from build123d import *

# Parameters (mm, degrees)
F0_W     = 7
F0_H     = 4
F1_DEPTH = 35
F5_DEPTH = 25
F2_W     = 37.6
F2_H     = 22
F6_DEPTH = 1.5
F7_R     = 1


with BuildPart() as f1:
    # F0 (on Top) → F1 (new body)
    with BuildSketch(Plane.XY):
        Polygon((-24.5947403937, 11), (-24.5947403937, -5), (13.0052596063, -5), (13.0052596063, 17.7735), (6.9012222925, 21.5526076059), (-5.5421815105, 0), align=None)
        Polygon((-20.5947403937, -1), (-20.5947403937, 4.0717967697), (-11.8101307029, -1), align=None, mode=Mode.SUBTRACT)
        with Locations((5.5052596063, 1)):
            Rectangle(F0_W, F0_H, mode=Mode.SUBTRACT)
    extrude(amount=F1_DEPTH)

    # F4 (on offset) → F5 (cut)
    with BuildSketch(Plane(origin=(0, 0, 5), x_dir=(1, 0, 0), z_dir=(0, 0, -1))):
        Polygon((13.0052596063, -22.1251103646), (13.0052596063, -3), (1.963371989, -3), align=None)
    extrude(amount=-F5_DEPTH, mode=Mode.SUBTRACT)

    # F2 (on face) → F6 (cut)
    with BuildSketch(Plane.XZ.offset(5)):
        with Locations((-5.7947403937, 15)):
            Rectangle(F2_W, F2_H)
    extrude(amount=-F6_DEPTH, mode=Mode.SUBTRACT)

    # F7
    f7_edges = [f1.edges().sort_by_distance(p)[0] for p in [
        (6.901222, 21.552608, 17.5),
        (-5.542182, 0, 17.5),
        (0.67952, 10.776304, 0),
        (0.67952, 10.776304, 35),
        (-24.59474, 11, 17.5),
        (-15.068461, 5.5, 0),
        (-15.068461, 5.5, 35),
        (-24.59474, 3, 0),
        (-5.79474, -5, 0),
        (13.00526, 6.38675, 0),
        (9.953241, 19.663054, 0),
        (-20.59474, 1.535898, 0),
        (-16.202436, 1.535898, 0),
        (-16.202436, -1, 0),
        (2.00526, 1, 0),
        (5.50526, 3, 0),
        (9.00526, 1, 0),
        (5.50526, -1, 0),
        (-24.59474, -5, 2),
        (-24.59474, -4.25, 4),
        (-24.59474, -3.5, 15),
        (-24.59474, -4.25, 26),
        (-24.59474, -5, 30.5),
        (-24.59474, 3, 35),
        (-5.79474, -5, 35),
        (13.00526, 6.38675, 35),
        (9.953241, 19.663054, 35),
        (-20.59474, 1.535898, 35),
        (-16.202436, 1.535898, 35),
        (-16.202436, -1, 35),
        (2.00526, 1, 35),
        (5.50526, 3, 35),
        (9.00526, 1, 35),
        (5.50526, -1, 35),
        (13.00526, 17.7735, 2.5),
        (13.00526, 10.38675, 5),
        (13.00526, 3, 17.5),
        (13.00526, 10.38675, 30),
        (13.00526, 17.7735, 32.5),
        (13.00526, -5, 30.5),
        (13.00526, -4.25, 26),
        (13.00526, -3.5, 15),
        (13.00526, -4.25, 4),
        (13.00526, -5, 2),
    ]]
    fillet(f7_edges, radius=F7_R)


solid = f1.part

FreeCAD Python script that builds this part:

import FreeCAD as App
import Part
import Sketcher

V = App.Vector
Q = App.Units.Quantity


def edges_at(feature, points):
    """Names of the edges that pass closest to the given points."""
    edges = feature.Shape.Edges
    near = lambda p: min(range(len(edges)), key=lambda i: edges[i].distToShape(Part.Vertex(*p))[0])
    return sorted({f"Edge{near(p) + 1}" for p in points})

doc = App.newDocument("Part")
body = doc.addObject("PartDesign::Body", "Body")

sketch1 = body.newObject("Sketcher::SketchObject", "Sketch")
sketch1.AttachmentSupport = (doc.getObject("XY_Plane"), [""])
sketch1.MapMode = "FlatFace"
sketch1.addGeometry([
    Part.LineSegment(V(-24.6, 11, 0), V(-24.6, -5, 0)),
    Part.LineSegment(V(-24.6, -5, 0), V(13, -5, 0)),
    Part.LineSegment(V(13, -5, 0), V(13, 17.8, 0)),
    Part.LineSegment(V(13, 17.8, 0), V(6.9, 21.6, 0)),
    Part.LineSegment(V(6.9, 21.6, 0), V(-5.5, 0, 0)),
    Part.LineSegment(V(-5.5, 0, 0), V(-24.6, 11, 0)),
    Part.LineSegment(V(9, -1, 0), V(2, -1, 0)),
    Part.LineSegment(V(2, -1, 0), V(2, 3, 0)),
    Part.LineSegment(V(2, 3, 0), V(9, 3, 0)),
    Part.LineSegment(V(9, 3, 0), V(9, -1, 0)),
    Part.LineSegment(V(-11.8, -1, 0), V(-20.6, -1, 0)),
    Part.LineSegment(V(-20.6, -1, 0), V(-20.6, 4.1, 0)),
    Part.LineSegment(V(-20.6, 4.1, 0), V(-11.8, -1, 0)),
], False)
sketch1.addConstraint([
    Sketcher.Constraint("Coincident", 0, 2, 1, 1),
    Sketcher.Constraint("Coincident", 1, 2, 2, 1),
    Sketcher.Constraint("Coincident", 2, 2, 3, 1),
    Sketcher.Constraint("Coincident", 3, 2, 4, 1),
    Sketcher.Constraint("Coincident", 4, 2, 5, 1),
    Sketcher.Constraint("Coincident", 5, 2, 0, 1),
    Sketcher.Constraint("Coincident", 6, 2, 7, 1),
    Sketcher.Constraint("Coincident", 7, 2, 8, 1),
    Sketcher.Constraint("Coincident", 8, 2, 9, 1),
    Sketcher.Constraint("Coincident", 9, 2, 6, 1),
    Sketcher.Constraint("Coincident", 10, 2, 11, 1),
    Sketcher.Constraint("Coincident", 11, 2, 12, 1),
    Sketcher.Constraint("Coincident", 12, 2, 10, 1),
    Sketcher.Constraint("Vertical", 0),
    Sketcher.Constraint("Horizontal", 1),
    Sketcher.Constraint("Vertical", 2),
    Sketcher.Constraint("Horizontal", 6),
    Sketcher.Constraint("Vertical", 7),
    Sketcher.Constraint("Horizontal", 8),
    Sketcher.Constraint("Vertical", 9),
    Sketcher.Constraint("Horizontal", 10),
    Sketcher.Constraint("Vertical", 11),
    Sketcher.Constraint("PointOnObject", 4, 2, -1),
    Sketcher.Constraint("Perpendicular", 4, 5),
    Sketcher.Constraint("Parallel", 5, 12),
    Sketcher.Constraint("Horizontal", 9, 2, 10, 2),
    Sketcher.Constraint("DistanceX", 6, 2, 6, 1, 7.0),
    Sketcher.Constraint("DistanceY", 0, 2, 0, 1, 16.0),
    Sketcher.Constraint("DistanceY", 7, 1, 7, 2, 4.0),
    Sketcher.Constraint("Angle", 4, Q("-120 deg")),
    Sketcher.Constraint("Distance", 5, 22.0),
    Sketcher.Constraint("DistanceX", 1, 1, 1, 2, 37.6),
    Sketcher.Constraint("DistanceY", 6, 2, -1, 1, 1.0),
    Sketcher.Constraint("DistanceX", 6, 2, 1, 2, 11.0),
    Sketcher.Constraint("DistanceX", 0, 2, 10, 2, 4.0),
    Sketcher.Constraint("DistanceY", 2, 1, 2, 2, 22.7735),
    Sketcher.Constraint("Distance", 3, 7.179201),
    Sketcher.Constraint("DistanceX", 10, 2, 10, 1, 8.78461),
    Sketcher.Constraint("DistanceX", 0, 2, -1, 1, 24.59474),
])
pad1 = body.newObject("PartDesign::Pad", "Pad")
pad1.Profile = sketch1
pad1.Length = 35

sketch2 = body.newObject("Sketcher::SketchObject", "Sketch001")
sketch2.AttachmentSupport = (doc.getObject("XY_Plane"), [""])
sketch2.MapMode = "FlatFace"
sketch2.AttachmentOffset = App.Placement(V(0, 0, 5), App.Rotation())
sketch2.addGeometry([
    Part.LineSegment(V(13, 22, 0), V(13, 3, 0)),
    Part.LineSegment(V(13, 3, 0), V(2, 3, 0)),
    Part.LineSegment(V(2, 3, 0), V(13, 22, 0)),
], False)
sketch2.addConstraint([
    Sketcher.Constraint("Coincident", 0, 2, 1, 1),
    Sketcher.Constraint("Coincident", 1, 2, 2, 1),
    Sketcher.Constraint("Coincident", 2, 2, 0, 1),
    Sketcher.Constraint("Vertical", 0),
    Sketcher.Constraint("Horizontal", 1),
    Sketcher.Constraint("Angle", 2, Q("60 deg")),
    Sketcher.Constraint("DistanceY", -1, 1, 0, 2, 3.0),
    Sketcher.Constraint("DistanceY", 0, 2, 0, 1, 19.12511),
    Sketcher.Constraint("DistanceX", -1, 1, 0, 2, 13.00526),
])
pocket1 = body.newObject("PartDesign::Pocket", "Pocket")
pocket1.Profile = sketch2
pocket1.Length = 25
pocket1.Reversed = True

sketch3 = body.newObject("Sketcher::SketchObject", "Sketch002")
sketch3.AttachmentSupport = (doc.getObject("XZ_Plane"), [""])
sketch3.MapMode = "FlatFace"
sketch3.AttachmentOffset = App.Placement(V(0, 0, 5), App.Rotation())
sketch3.addGeometry([
    Part.LineSegment(V(-25, 26, 0), V(-25, 4, 0)),
    Part.LineSegment(V(-25, 4, 0), V(13, 4, 0)),
    Part.LineSegment(V(13, 4, 0), V(13, 26, 0)),
    Part.LineSegment(V(13, 26, 0), V(-25, 26, 0)),
], False)
sketch3.addConstraint([
    Sketcher.Constraint("Coincident", 0, 2, 1, 1),
    Sketcher.Constraint("Coincident", 1, 2, 2, 1),
    Sketcher.Constraint("Coincident", 2, 2, 3, 1),
    Sketcher.Constraint("Coincident", 3, 2, 0, 1),
    Sketcher.Constraint("Vertical", 0),
    Sketcher.Constraint("Horizontal", 1),
    Sketcher.Constraint("Vertical", 2),
    Sketcher.Constraint("Horizontal", 3),
    Sketcher.Constraint("DistanceY", 0, 2, 0, 1, 22.0),
    Sketcher.Constraint("DistanceX", 1, 1, 1, 2, 37.6),
    Sketcher.Constraint("DistanceY", -1, 1, 0, 2, 4.0),
    Sketcher.Constraint("DistanceX", 0, 2, -1, 1, 24.59474),
])
pocket2 = body.newObject("PartDesign::Pocket", "Pocket001")
pocket2.Profile = sketch3
pocket2.Length = 1.5
doc.recompute()

fillet = body.newObject("PartDesign::Fillet", "Fillet")
fillet.Base = (pocket2, edges_at(pocket2, [
    (6.901, 21.553, 17.5),
    (-5.542, 0, 17.5),
    (0.68, 10.776, 0),
    (0.68, 10.776, 35),
    (-24.595, 11, 17.5),
    (-15.068, 5.5, 0),
    (-15.068, 5.5, 35),
    (-24.595, 3, 0),
    (-5.795, -5, 0),
    (13.005, 6.387, 0),
    (9.953, 19.663, 0),
    (-20.595, 1.536, 0),
    (-16.202, 1.536, 0),
    (-16.202, -1, 0),
    (2.005, 1, 0),
    (5.505, 3, 0),
    (9.005, 1, 0),
    (5.505, -1, 0),
    (-24.595, -5, 2),
    (-24.595, -4.25, 4),
    (-24.595, -3.5, 15),
    (-24.595, -4.25, 26),
    (-24.595, -5, 30.5),
    (-24.595, 3, 35),
    (-5.795, -5, 35),
    (13.005, 6.387, 35),
    (9.953, 19.663, 35),
    (-20.595, 1.536, 35),
    (-16.202, 1.536, 35),
    (-16.202, -1, 35),
    (2.005, 1, 35),
    (5.505, 3, 35),
    (9.005, 1, 35),
    (5.505, -1, 35),
    (13.005, 17.773, 2.5),
    (13.005, 10.387, 5),
    (13.005, 3, 17.5),
    (13.005, 10.387, 30),
    (13.005, 17.773, 32.5),
    (13.005, -5, 30.5),
    (13.005, -4.25, 26),
    (13.005, -3.5, 15),
    (13.005, -4.25, 4),
    (13.005, -5, 2),
]))
fillet.Radius = 1

doc.recompute()
